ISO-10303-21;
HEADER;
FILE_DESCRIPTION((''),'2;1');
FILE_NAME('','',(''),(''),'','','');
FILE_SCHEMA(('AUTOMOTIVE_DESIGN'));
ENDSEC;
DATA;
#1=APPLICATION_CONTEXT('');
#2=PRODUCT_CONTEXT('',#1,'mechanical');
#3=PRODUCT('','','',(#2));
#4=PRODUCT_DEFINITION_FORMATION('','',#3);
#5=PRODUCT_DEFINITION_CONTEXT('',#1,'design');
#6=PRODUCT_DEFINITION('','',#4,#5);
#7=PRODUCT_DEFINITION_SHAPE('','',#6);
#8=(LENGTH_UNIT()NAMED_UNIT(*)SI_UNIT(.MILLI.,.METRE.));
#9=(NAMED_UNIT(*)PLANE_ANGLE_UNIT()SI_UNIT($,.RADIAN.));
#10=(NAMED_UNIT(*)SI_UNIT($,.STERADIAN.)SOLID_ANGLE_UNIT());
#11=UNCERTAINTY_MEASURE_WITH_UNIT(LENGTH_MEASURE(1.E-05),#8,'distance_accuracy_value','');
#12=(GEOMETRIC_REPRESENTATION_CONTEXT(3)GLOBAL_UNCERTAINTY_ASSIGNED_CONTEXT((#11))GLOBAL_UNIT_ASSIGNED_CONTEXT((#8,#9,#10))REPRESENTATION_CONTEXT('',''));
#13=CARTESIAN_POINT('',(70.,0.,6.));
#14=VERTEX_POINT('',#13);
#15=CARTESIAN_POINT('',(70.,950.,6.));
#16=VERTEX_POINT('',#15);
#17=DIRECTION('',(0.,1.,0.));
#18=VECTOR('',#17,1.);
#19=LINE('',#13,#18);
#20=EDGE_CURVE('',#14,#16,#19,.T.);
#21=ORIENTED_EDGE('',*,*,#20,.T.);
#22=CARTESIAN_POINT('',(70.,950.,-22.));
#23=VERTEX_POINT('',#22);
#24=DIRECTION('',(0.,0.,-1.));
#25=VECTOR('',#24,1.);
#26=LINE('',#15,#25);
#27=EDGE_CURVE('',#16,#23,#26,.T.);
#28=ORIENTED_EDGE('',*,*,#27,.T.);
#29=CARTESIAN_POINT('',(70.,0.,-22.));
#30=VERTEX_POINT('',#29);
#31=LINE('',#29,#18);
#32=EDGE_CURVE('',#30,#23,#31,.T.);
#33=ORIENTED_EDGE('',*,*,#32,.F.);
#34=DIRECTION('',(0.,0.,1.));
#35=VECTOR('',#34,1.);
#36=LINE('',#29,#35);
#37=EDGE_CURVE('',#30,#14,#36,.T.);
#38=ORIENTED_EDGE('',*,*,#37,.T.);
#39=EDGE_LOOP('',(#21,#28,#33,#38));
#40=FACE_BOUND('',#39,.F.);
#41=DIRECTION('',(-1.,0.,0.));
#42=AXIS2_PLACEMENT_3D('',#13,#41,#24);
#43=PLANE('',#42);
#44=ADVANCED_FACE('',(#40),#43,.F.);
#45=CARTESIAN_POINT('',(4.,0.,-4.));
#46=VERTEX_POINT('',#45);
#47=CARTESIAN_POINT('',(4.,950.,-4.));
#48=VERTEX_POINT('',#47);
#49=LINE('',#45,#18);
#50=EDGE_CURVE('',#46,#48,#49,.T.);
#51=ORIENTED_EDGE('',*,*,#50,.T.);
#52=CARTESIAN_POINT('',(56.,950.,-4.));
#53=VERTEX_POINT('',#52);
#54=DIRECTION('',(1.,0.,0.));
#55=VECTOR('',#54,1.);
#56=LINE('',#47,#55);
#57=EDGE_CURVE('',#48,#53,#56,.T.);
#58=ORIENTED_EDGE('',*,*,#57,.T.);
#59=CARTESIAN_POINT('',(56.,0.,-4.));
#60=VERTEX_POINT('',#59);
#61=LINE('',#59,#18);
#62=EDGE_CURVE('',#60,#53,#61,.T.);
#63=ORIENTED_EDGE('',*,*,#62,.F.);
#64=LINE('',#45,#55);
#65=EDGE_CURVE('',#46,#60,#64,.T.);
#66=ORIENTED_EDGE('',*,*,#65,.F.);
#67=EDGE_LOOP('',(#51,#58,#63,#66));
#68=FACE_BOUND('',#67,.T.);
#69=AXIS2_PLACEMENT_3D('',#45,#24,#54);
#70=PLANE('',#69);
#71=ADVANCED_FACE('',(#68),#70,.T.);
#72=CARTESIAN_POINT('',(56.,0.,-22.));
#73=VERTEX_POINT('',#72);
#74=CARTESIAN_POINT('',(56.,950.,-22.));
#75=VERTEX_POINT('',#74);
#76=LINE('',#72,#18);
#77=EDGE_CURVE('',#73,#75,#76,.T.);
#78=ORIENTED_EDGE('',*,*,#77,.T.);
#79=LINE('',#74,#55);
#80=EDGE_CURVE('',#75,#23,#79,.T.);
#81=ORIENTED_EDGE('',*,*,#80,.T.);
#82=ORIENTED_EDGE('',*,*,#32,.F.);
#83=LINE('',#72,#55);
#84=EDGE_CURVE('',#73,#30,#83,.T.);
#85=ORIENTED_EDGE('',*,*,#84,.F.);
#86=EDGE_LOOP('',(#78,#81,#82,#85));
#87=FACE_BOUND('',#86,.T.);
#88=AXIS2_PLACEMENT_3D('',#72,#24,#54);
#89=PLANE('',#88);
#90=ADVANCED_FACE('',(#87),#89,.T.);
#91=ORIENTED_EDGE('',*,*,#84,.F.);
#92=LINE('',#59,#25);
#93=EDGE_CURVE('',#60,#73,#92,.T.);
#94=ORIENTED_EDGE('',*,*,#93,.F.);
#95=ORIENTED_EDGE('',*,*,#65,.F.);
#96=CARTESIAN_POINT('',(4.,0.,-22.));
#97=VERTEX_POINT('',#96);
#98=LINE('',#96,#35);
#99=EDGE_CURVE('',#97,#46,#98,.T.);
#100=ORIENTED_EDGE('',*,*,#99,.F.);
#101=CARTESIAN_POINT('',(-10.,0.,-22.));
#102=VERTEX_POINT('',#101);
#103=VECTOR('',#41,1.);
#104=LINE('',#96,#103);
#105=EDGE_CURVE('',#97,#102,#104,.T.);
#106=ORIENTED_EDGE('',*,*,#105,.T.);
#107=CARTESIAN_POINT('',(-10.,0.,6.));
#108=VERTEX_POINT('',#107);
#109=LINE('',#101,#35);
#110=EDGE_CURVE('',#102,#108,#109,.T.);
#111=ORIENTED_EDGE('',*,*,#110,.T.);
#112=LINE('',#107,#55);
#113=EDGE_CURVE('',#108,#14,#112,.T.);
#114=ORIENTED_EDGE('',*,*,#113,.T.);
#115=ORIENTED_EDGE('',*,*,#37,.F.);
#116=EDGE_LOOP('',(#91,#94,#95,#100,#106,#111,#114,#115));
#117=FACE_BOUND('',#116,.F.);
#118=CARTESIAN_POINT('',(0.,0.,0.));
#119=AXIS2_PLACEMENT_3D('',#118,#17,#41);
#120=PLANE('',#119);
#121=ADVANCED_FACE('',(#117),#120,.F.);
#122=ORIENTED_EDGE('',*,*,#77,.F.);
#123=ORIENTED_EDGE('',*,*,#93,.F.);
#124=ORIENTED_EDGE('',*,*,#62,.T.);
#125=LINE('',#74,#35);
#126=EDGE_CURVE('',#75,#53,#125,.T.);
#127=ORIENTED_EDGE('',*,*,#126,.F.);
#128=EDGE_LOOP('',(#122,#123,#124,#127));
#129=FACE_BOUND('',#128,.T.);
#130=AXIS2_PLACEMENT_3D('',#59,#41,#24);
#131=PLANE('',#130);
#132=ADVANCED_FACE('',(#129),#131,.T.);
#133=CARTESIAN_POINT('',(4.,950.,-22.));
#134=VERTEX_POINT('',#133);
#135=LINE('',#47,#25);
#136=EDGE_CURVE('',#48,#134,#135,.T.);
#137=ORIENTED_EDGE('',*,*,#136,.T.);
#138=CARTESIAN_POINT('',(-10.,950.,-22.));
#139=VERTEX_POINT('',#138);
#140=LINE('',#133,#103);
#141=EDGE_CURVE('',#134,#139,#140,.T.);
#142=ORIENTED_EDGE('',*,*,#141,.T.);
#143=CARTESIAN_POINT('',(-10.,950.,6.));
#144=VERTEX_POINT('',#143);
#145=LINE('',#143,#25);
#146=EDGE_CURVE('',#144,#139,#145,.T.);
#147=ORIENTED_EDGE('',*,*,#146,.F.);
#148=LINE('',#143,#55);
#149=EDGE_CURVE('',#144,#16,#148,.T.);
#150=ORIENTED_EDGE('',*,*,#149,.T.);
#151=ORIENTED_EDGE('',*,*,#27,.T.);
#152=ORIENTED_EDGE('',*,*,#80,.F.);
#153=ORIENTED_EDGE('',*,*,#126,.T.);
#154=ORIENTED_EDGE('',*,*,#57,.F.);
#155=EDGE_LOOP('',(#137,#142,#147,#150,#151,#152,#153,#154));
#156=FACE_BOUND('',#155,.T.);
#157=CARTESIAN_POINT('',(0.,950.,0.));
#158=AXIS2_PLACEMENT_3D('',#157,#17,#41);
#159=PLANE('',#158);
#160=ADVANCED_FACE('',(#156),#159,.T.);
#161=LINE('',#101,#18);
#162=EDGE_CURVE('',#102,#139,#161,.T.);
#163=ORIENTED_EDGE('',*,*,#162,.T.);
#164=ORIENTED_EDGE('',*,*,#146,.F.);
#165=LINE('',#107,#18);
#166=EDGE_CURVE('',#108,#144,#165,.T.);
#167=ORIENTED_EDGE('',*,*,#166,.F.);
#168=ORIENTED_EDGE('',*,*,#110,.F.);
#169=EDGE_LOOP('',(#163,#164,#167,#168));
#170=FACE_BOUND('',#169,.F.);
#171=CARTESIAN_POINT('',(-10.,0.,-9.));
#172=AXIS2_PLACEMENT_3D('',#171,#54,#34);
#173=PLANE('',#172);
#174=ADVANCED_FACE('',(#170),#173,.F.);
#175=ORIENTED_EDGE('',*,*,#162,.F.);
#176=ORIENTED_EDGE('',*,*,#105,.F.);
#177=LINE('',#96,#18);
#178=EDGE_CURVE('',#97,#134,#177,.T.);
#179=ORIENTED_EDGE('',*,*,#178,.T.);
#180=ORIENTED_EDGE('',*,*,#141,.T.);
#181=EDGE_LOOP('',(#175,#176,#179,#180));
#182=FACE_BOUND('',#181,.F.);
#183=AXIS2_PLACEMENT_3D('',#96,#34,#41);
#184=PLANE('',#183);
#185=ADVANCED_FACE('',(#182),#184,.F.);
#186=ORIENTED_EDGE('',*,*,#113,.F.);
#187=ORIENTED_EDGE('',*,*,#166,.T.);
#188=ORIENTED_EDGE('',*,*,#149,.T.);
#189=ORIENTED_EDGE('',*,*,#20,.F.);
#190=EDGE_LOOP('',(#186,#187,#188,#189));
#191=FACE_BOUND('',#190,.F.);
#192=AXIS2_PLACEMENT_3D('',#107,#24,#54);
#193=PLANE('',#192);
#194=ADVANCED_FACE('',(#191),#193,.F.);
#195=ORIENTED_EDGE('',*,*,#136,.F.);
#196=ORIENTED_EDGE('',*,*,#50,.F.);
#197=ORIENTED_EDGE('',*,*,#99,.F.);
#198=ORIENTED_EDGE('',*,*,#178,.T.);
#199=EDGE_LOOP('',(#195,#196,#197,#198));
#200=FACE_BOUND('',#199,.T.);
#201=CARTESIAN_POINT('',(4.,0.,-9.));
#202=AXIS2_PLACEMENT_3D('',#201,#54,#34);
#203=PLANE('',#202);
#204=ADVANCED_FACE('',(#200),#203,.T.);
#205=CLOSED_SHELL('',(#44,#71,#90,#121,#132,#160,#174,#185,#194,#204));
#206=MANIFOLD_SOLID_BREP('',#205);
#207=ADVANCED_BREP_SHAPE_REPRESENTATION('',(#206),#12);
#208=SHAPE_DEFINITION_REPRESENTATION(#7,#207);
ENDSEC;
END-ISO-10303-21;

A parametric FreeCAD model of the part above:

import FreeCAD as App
import Part
import Sketcher
from FreeCAD import Vector

doc = App.newDocument("Part")
body = doc.addObject("PartDesign::Body", "Body")

# Sketch on XZ plane
sketch1 = body.newObject("Sketcher::SketchObject", "Sketch")
sketch1.AttachmentSupport = (doc.getObject("XZ_Plane"), [""])
sketch1.MapMode = "FlatFace"
sketch1.addGeometry(Part.LineSegment(Vector(-10, 6, 0), Vector(70, 6, 0)), False)
sketch1.addGeometry(Part.LineSegment(Vector(70, 6, 0), Vector(70, -22, 0)), False)
sketch1.addGeometry(Part.LineSegment(Vector(70, -22, 0), Vector(56, -22, 0)), False)
sketch1.addGeometry(Part.LineSegment(Vector(56, -22, 0), Vector(56, -4, 0)), False)
sketch1.addGeometry(Part.LineSegment(Vector(56, -4, 0), Vector(4, -4, 0)), False)
sketch1.addGeometry(Part.LineSegment(Vector(4, -4, 0), Vector(4, -22, 0)), False)
sketch1.addGeometry(Part.LineSegment(Vector(4, -22, 0), Vector(-10, -22, 0)), False)
sketch1.addGeometry(Part.LineSegment(Vector(-10, -22, 0), Vector(-10, 6, 0)), False)
sketch1.addConstraint(Sketcher.Constraint("Coincident", 0, 2, 1, 1))
sketch1.addConstraint(Sketcher.Constraint("Coincident", 1, 2, 2, 1))
sketch1.addConstraint(Sketcher.Constraint("Coincident", 2, 2, 3, 1))
sketch1.addConstraint(Sketcher.Constraint("Coincident", 3, 2, 4, 1))
sketch1.addConstraint(Sketcher.Constraint("Coincident", 4, 2, 5, 1))
sketch1.addConstraint(Sketcher.Constraint("Coincident", 5, 2, 6, 1))
sketch1.addConstraint(Sketcher.Constraint("Coincident", 6, 2, 7, 1))
sketch1.addConstraint(Sketcher.Constraint("Coincident", 7, 2, 0, 1))
sketch1.addConstraint(Sketcher.Constraint("Horizontal", 0))
sketch1.addConstraint(Sketcher.Constraint("Vertical", 1))
sketch1.addConstraint(Sketcher.Constraint("Horizontal", 2))
sketch1.addConstraint(Sketcher.Constraint("Vertical", 3))
sketch1.addConstraint(Sketcher.Constraint("Horizontal", 4))
sketch1.addConstraint(Sketcher.Constraint("Vertical", 5))
sketch1.addConstraint(Sketcher.Constraint("Horizontal", 6))
sketch1.addConstraint(Sketcher.Constraint("Vertical", 7))
sketch1.addConstraint(Sketcher.Constraint("Horizontal", 2, 2, 5, 2))
sketch1.addConstraint(Sketcher.Constraint("Equal", 2, 6))
sketch1.addConstraint(Sketcher.Constraint("DistanceX", 0, 1, 0, 2, 80.0))
sketch1.addConstraint(Sketcher.Constraint("DistanceX", 2, 2, 2, 1, 14.0))
sketch1.addConstraint(Sketcher.Constraint("DistanceY", 1, 2, 1, 1, 28.0))
sketch1.addConstraint(Sketcher.Constraint("DistanceY", 3, 1, 3, 2, 18.0))
sketch1.addConstraint(Sketcher.Constraint("DistanceX", -1, 1, 0, 2, 70.0))
sketch1.addConstraint(Sketcher.Constraint("DistanceY", -1, 1, 0, 2, 6.0))
pad1 = body.newObject("PartDesign::Pad", "Pad")
pad1.Profile = sketch1
pad1.Length = 950
pad1.Reversed = True

doc.recompute()
